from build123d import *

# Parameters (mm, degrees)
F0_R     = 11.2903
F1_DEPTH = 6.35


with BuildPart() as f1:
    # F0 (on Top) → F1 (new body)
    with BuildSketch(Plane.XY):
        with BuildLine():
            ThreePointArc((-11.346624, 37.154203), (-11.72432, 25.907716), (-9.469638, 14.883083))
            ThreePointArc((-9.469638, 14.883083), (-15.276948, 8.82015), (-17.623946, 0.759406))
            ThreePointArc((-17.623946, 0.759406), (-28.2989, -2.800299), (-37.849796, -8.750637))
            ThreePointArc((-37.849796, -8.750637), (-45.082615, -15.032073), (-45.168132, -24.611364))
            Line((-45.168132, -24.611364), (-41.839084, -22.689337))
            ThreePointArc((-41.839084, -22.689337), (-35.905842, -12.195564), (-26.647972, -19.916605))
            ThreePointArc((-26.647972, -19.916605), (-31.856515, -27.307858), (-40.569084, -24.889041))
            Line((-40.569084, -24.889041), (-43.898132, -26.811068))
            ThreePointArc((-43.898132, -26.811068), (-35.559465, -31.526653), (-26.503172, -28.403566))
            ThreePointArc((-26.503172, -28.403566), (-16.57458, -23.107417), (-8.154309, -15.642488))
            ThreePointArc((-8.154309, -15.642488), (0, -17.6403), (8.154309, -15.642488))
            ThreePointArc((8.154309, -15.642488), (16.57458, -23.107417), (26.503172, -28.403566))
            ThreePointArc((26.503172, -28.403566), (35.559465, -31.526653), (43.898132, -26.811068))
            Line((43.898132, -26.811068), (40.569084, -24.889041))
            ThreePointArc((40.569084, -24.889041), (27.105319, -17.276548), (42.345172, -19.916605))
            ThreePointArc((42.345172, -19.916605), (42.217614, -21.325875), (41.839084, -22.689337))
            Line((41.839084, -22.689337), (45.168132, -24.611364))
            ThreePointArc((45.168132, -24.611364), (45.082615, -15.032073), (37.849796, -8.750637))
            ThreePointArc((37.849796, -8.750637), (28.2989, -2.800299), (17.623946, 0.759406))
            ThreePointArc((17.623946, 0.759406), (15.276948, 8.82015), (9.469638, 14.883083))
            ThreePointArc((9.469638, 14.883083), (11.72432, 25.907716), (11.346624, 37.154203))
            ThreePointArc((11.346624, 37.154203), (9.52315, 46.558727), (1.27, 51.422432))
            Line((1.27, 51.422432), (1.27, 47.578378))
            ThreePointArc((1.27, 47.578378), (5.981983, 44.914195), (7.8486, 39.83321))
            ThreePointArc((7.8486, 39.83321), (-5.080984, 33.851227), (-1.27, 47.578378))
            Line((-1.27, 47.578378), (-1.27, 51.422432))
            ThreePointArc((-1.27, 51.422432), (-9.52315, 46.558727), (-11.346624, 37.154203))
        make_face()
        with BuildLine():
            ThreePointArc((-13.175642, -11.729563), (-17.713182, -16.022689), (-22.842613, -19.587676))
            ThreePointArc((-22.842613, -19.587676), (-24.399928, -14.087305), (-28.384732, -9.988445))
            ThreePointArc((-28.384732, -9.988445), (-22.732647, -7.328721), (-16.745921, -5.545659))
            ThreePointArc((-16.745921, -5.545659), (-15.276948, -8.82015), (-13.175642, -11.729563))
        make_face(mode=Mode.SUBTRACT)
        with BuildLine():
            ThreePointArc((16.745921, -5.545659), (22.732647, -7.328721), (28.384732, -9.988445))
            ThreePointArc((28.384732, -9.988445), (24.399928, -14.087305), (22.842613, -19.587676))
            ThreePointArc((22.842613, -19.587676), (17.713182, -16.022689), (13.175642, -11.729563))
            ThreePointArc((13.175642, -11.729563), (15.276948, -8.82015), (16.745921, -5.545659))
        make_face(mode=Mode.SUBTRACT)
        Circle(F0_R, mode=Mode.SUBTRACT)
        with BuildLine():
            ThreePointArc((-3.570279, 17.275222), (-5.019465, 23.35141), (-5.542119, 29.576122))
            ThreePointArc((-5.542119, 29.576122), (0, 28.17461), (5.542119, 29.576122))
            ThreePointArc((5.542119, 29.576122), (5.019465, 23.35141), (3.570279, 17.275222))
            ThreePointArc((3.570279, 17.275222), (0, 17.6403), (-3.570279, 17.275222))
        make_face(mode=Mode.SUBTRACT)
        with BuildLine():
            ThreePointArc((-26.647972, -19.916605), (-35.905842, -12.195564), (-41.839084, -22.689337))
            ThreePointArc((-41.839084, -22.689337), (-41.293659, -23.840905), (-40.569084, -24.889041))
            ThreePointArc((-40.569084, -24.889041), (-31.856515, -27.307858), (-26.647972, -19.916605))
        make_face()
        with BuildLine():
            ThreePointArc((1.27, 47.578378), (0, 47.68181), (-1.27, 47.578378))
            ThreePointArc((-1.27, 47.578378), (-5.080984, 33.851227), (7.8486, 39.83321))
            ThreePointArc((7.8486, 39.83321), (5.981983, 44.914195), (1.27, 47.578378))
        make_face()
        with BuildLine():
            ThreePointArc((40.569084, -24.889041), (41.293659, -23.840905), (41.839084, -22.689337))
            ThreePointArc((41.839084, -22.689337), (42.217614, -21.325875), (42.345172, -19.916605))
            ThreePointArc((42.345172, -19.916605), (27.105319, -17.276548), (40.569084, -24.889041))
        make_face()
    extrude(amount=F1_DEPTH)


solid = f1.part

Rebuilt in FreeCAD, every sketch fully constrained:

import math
import FreeCAD as App
import Part
import Sketcher

V = App.Vector
Q = App.Units.Quantity

doc = App.newDocument("Part")
body = doc.addObject("PartDesign::Body", "Body")

sketch1 = doc.addObject("Sketcher::SketchObject", "Sketch")
body.addObject(sketch1)
sketch1.AttachmentSupport = (doc.XY_Plane, [""])
sketch1.MapMode = "FlatFace"
sketch1.addGeometry([
    Part.ArcOfCircle(Part.Circle(V(36.039736, 29.933219, 0), V(0, 0, 1), 47.933388), math.radians(171.335622), math.radians(198.299262)),
    Part.ArcOfCircle(Part.Circle(V(0.000001, 0.000001, 0), V(0, 0, 1), 17.6403), math.radians(122.467319), math.radians(177.532686)),
    Part.ArcOfCircle(Part.Circle(V(-7.903057, -46.177944, 0), V(0, 0, 1), 47.933396), math.radians(101.700739), math.radians(128.664376)),
    Part.ArcOfCircle(Part.Circle(V(-34.496573, -19.916605, 0), V(0, 0, 1), 11.6586), math.radians(106.715404), math.radians(203.746225)),
    Part.LineSegment(V(-45.168132, -24.611364, 0), V(-41.839084, -22.689337, 0)),
    Part.ArcOfCircle(Part.Circle(V(-34.496567, -19.916601, 0), V(0, 0, 1), 7.848606), math.radians(-159.312089), math.radians(-140.687899)),
    Part.LineSegment(V(-40.569084, -24.889041, 0), V(-43.898132, -26.811068, 0)),
    Part.ArcOfCircle(Part.Circle(V(-34.496572, -19.916606, 0), V(0, 0, 1), 11.658599), math.radians(-143.746222), math.radians(-46.715404)),
    Part.ArcOfCircle(Part.Circle(V(-43.942787, 16.244703, 0), V(0, 0, 1), 47.933371), math.radians(-68.664383), math.radians(-41.700732)),
    Part.ArcOfCircle(Part.Circle(V(0, 0.000001, 0), V(0, 0, 1), 17.640301), math.radians(-117.532685), math.radians(-62.467315)),
    Part.ArcOfCircle(Part.Circle(V(43.942787, 16.244703, 0), V(0, 0, 1), 47.933371), math.radians(-138.299268), math.radians(-111.335617)),
    Part.ArcOfCircle(Part.Circle(V(34.496572, -19.916606, 0), V(0, 0, 1), 11.658599), math.radians(-133.284596), math.radians(-36.253778)),
    Part.LineSegment(V(43.898132, -26.811068, 0), V(40.569084, -24.889041, 0)),
    Part.ArcOfCircle(Part.Circle(V(34.496567, -19.916601, 0), V(0, 0, 1), 7.848606), math.radians(-39.312101), math.radians(-20.687911)),
    Part.LineSegment(V(41.839084, -22.689337, 0), V(45.168132, -24.611364, 0)),
    Part.ArcOfCircle(Part.Circle(V(34.496573, -19.916605, 0), V(0, 0, 1), 11.6586), math.radians(-23.746225), math.radians(73.284596)),
    Part.ArcOfCircle(Part.Circle(V(7.903057, -46.177944, 0), V(0, 0, 1), 47.933396), math.radians(51.335624), math.radians(78.299261)),
    Part.ArcOfCircle(Part.Circle(V(-0.000001, 0.000001, 0), V(0, 0, 1), 17.6403), math.radians(2.467314), math.radians(57.532681)),
    Part.ArcOfCircle(Part.Circle(V(-36.039736, 29.933219, 0), V(0, 0, 1), 47.933388), math.radians(-18.299262), math.radians(8.664378)),
    Part.ArcOfCircle(Part.Circle(V(0, 39.833211, 0), V(0, 0, 1), 11.6586), math.radians(-13.284597), math.radians(83.746221)),
    Part.LineSegment(V(1.27, 51.422432, 0), V(1.27, 47.578378, 0)),
    Part.ArcOfCircle(Part.Circle(V(0, 39.833184, 0), V(0, 0, 1), 7.848626), math.radians(80.687927), math.radians(99.312073)),
    Part.LineSegment(V(-1.27, 47.578378, 0), V(-1.27, 51.422432, 0)),
    Part.ArcOfCircle(Part.Circle(V(0, 39.833211, 0), V(0, 0, 1), 11.6586), math.radians(96.253779), math.radians(193.284597)),
    Part.ArcOfCircle(Part.Circle(V(0.000012, 0.000008, 0), V(0, 0, 1), 17.640315), math.radians(-161.676936), math.radians(-138.323059)),
    Part.ArcOfCircle(Part.Circle(V(-43.942775, 16.244691, 0), V(0, 0, 1), 41.583354), math.radians(-59.507972), math.radians(-42.277903)),
    Part.ArcOfCircle(Part.Circle(V(-34.49657, -19.916604, 0), V(0, 0, 1), 11.658598), math.radians(1.61672), math.radians(58.383283)),
    Part.ArcOfCircle(Part.Circle(V(-7.903069, -46.177916, 0), V(0, 0, 1), 41.583366), math.radians(102.277905), math.radians(119.50797)),
    Part.ArcOfCircle(Part.Circle(V(-0.000012, 0.000008, 0), V(0, 0, 1), 17.640315), math.radians(-41.676941), math.radians(-18.323064)),
    Part.ArcOfCircle(Part.Circle(V(7.903069, -46.177916, 0), V(0, 0, 1), 41.583366), math.radians(60.49203), math.radians(77.722095)),
    Part.ArcOfCircle(Part.Circle(V(34.49657, -19.916604, 0), V(0, 0, 1), 11.658598), math.radians(121.616717), math.radians(178.38328)),
    Part.ArcOfCircle(Part.Circle(V(43.942775, 16.244691, 0), V(0, 0, 1), 41.583354), math.radians(-137.722097), math.radians(-120.492028)),
    Part.Circle(V(0, 0, 0), V(0, 0, 1), 11.2903),
    Part.ArcOfCircle(Part.Circle(V(0, -0.000004, 0), V(0, 0, 1), 17.640304), math.radians(78.323054), math.radians(101.676946)),
    Part.ArcOfCircle(Part.Circle(V(36.039719, 29.933216, 0), V(0, 0, 1), 41.583371), math.radians(-179.50797), math.radians(-162.277906)),
    Part.ArcOfCircle(Part.Circle(V(0, 39.833204, 0), V(0, 0, 1), 11.658594), math.radians(-118.383293), math.radians(-61.616707)),
    Part.ArcOfCircle(Part.Circle(V(-36.039719, 29.933216, 0), V(0, 0, 1), 41.583371), math.radians(-17.722094), math.radians(-0.49203)),
], False)
sketch1.addConstraint([
    Sketcher.Constraint("Coincident", 0, 2, 1, 1),
    Sketcher.Constraint("Coincident", 1, 2, 2, 1),
    Sketcher.Constraint("Coincident", 2, 2, 3, 1),
    Sketcher.Constraint("Coincident", 3, 2, 4, 1),
    Sketcher.Constraint("Coincident", 4, 2, 5, 1),
    Sketcher.Constraint("Coincident", 5, 2, 6, 1),
    Sketcher.Constraint("Coincident", 6, 2, 7, 1),
    Sketcher.Constraint("Coincident", 7, 2, 8, 1),
    Sketcher.Constraint("Coincident", 8, 2, 9, 1),
    Sketcher.Constraint("Coincident", 9, 2, 10, 1),
    Sketcher.Constraint("Coincident", 10, 2, 11, 1),
    Sketcher.Constraint("Coincident", 11, 2, 12, 1),
    Sketcher.Constraint("Coincident", 12, 2, 13, 1),
    Sketcher.Constraint("Coincident", 13, 2, 14, 1),
    Sketcher.Constraint("Coincident", 14, 2, 15, 1),
    Sketcher.Constraint("Coincident", 15, 2, 16, 1),
    Sketcher.Constraint("Coincident", 16, 2, 17, 1),
    Sketcher.Constraint("Coincident", 17, 2, 18, 1),
    Sketcher.Constraint("Coincident", 18, 2, 19, 1),
    Sketcher.Constraint("Coincident", 19, 2, 20, 1),
    Sketcher.Constraint("Coincident", 20, 2, 21, 1),
    Sketcher.Constraint("Coincident", 21, 2, 22, 1),
    Sketcher.Constraint("Coincident", 22, 2, 23, 1),
    Sketcher.Constraint("Coincident", 23, 2, 0, 1),
    Sketcher.Constraint("Coincident", 24, 2, 25, 2),
    Sketcher.Constraint("Coincident", 25, 1, 26, 1),
    Sketcher.Constraint("Coincident", 26, 2, 27, 2),
    Sketcher.Constraint("Coincident", 27, 1, 24, 1),
    Sketcher.Constraint("Coincident", 28, 2, 29, 2),
    Sketcher.Constraint("Coincident", 29, 1, 30, 1),
    Sketcher.Constraint("Coincident", 30, 2, 31, 2),
    Sketcher.Constraint("Coincident", 31, 1, 28, 1),
    Sketcher.Constraint("Coincident", 33, 2, 34, 2),
    Sketcher.Constraint("Coincident", 34, 1, 35, 1),
    Sketcher.Constraint("Coincident", 35, 2, 36, 2),
    Sketcher.Constraint("Coincident", 36, 1, 33, 1),
    Sketcher.Constraint("Vertical", 20),
    Sketcher.Constraint("Vertical", 22),
    Sketcher.Constraint("Coincident", 1, 3, -1, 1),
    Sketcher.Constraint("Coincident", 9, 3, -1, 1),
    Sketcher.Constraint("Coincident", 17, 3, -1, 1),
    Sketcher.Constraint("Coincident", 32, 3, -1, 1),
    Sketcher.Constraint("Coincident", 33, 3, -1, 1),
    Sketcher.Constraint("Coincident", 5, 3, 3, 3),
    Sketcher.Constraint("Coincident", 7, 3, 3, 3),
    Sketcher.Constraint("Coincident", 13, 3, 11, 3),
    Sketcher.Constraint("Coincident", 15, 3, 11, 3),
    Sketcher.Constraint("Coincident", 23, 3, 19, 3),
    Sketcher.Constraint("Coincident", 26, 3, 3, 3),
    Sketcher.Constraint("Coincident", 30, 3, 11, 3),
    Sketcher.Constraint("Coincident", 35, 3, 19, 3),
    Sketcher.Constraint("Equal", 3, 7),
    Sketcher.Constraint("Equal", 1, 9),
    Sketcher.Constraint("Equal", 8, 10),
    Sketcher.Constraint("Equal", 7, 11),
    Sketcher.Constraint("Equal", 5, 13),
    Sketcher.Constraint("Equal", 11, 15),
    Sketcher.Constraint("Equal", 2, 16),
    Sketcher.Constraint("Equal", 9, 17),
    Sketcher.Constraint("Equal", 0, 18),
    Sketcher.Constraint("Equal", 15, 19),
    Sketcher.Constraint("Equal", 19, 23),
    Sketcher.Constraint("Equal", 15, 26),
    Sketcher.Constraint("Equal", 24, 28),
    Sketcher.Constraint("Equal", 27, 29),
    Sketcher.Constraint("Equal", 26, 30),
    Sketcher.Constraint("Equal", 25, 31),
    Sketcher.Constraint("Equal", 34, 36),
    Sketcher.Constraint("Symmetric", 8, 3, 10, 3, -2),
    Sketcher.Constraint("Symmetric", 3, 3, 11, 3, -2),
    Sketcher.Constraint("Symmetric", 2, 3, 16, 3, -2),
    Sketcher.Constraint("Symmetric", 0, 3, 18, 3, -2),
    Sketcher.Constraint("Symmetric", 24, 3, 28, 3, -2),
    Sketcher.Constraint("Symmetric", 27, 3, 29, 3, -2),
    Sketcher.Constraint("Symmetric", 25, 3, 31, 3, -2),
    Sketcher.Constraint("Symmetric", 34, 3, 36, 3, -2),
    Sketcher.Constraint("Symmetric", 20, 2, 21, 2, -2),
    Sketcher.Constraint("PointOnObject", 19, 3, -2),
    Sketcher.Constraint("Parallel", 4, 6),
    Sketcher.Constraint("Parallel", 12, 14),
    Sketcher.Constraint("Horizontal", 6, 2, 11, 2),
    Sketcher.Constraint("Horizontal", 5, 2, 12, 2),
    Sketcher.Constraint("Horizontal", 4, 2, 13, 2),
    Sketcher.Constraint("Equal", 4, 6),
    Sketcher.Constraint("Diameter", 32, Q("0.889 in")),
    Sketcher.Constraint("Angle", 4, Q("30.000003 deg")),
    Sketcher.Constraint("Radius", 3, Q("0.459 in")),
    Sketcher.Constraint("Radius", 1, Q("0.6945 in")),
    Sketcher.Constraint("Radius", 33, Q("0.6945002 in")),
    Sketcher.Constraint("DistanceX", -1, 1, 19, 2, Q("0.05 in")),
    Sketcher.Constraint("Radius", 0, Q("47.933388 mm")),
    Sketcher.Constraint("Radius", 8, Q("47.933371 mm")),
    Sketcher.Constraint("Radius", 34, Q("41.583371 mm")),
    Sketcher.Constraint("Radius", 2, Q("47.933396 mm")),
    Sketcher.Constraint("Radius", 5, Q("7.848606 mm")),
    Sketcher.Constraint("Radius", 21, Q("7.848626 mm")),
    Sketcher.Constraint("Radius", 24, Q("17.640315 mm")),
    Sketcher.Constraint("Radius", 25, Q("41.583354 mm")),
    Sketcher.Constraint("Radius", 27, Q("41.583366 mm")),
    Sketcher.Constraint("Radius", 35, Q("11.658594 mm")),
    Sketcher.Constraint("DistanceY", 5, 3, -1, 1, Q("19.916601 mm")),
    Sketcher.Constraint("DistanceY", 20, 2, 20, 1, Q("3.844054 mm")),
    Sketcher.Constraint("DistanceY", -1, 1, 0, 3, Q("29.933219 mm")),
    Sketcher.Constraint("DistanceY", -1, 1, 19, 3, Q("39.833211 mm")),
    Sketcher.Constraint("DistanceY", -1, 1, 25, 3, Q("16.244691 mm")),
    Sketcher.Constraint("DistanceX", 26, 3, -1, 1, Q("34.49657 mm")),
    Sketcher.Constraint("DistanceX", 27, 3, -1, 1, Q("7.903069 mm")),
    Sketcher.Constraint("DistanceX", -1, 1, 34, 3, Q("36.039719 mm")),
    Sketcher.Constraint("DistanceY", 5, 2, -1, 1, Q("24.889041 mm")),
    Sketcher.Constraint("DistanceX", 8, 2, -1, 1, Q("8.154309 mm")),
    Sketcher.Constraint("DistanceX", -1, 1, 17, 2, Q("9.469638 mm")),
    Sketcher.Constraint("DistanceX", 27, 1, -1, 1, Q("16.745921 mm")),
    Sketcher.Constraint("DistanceY", 27, 1, -1, 1, Q("5.545659 mm")),
    Sketcher.Constraint("DistanceX", -1, 1, 31, 1, Q("13.175642 mm")),
    Sketcher.Constraint("DistanceX", 33, 2, -1, 1, Q("3.570279 mm")),
    Sketcher.Constraint("DistanceX", 2, 3, -1, 1, Q("7.903057 mm")),
    Sketcher.Constraint("DistanceY", 2, 3, -1, 1, Q("46.177944 mm")),
    Sketcher.Constraint("DistanceX", 8, 3, -1, 1, Q("43.942787 mm")),
    Sketcher.Constraint("DistanceX", 25, 3, -1, 1, Q("43.942775 mm")),
])
pad1 = doc.addObject("PartDesign::Pad", "Pad")
body.addObject(pad1)
pad1.Profile = sketch1
pad1.Length = Q("0.25 in")

doc.recompute()
